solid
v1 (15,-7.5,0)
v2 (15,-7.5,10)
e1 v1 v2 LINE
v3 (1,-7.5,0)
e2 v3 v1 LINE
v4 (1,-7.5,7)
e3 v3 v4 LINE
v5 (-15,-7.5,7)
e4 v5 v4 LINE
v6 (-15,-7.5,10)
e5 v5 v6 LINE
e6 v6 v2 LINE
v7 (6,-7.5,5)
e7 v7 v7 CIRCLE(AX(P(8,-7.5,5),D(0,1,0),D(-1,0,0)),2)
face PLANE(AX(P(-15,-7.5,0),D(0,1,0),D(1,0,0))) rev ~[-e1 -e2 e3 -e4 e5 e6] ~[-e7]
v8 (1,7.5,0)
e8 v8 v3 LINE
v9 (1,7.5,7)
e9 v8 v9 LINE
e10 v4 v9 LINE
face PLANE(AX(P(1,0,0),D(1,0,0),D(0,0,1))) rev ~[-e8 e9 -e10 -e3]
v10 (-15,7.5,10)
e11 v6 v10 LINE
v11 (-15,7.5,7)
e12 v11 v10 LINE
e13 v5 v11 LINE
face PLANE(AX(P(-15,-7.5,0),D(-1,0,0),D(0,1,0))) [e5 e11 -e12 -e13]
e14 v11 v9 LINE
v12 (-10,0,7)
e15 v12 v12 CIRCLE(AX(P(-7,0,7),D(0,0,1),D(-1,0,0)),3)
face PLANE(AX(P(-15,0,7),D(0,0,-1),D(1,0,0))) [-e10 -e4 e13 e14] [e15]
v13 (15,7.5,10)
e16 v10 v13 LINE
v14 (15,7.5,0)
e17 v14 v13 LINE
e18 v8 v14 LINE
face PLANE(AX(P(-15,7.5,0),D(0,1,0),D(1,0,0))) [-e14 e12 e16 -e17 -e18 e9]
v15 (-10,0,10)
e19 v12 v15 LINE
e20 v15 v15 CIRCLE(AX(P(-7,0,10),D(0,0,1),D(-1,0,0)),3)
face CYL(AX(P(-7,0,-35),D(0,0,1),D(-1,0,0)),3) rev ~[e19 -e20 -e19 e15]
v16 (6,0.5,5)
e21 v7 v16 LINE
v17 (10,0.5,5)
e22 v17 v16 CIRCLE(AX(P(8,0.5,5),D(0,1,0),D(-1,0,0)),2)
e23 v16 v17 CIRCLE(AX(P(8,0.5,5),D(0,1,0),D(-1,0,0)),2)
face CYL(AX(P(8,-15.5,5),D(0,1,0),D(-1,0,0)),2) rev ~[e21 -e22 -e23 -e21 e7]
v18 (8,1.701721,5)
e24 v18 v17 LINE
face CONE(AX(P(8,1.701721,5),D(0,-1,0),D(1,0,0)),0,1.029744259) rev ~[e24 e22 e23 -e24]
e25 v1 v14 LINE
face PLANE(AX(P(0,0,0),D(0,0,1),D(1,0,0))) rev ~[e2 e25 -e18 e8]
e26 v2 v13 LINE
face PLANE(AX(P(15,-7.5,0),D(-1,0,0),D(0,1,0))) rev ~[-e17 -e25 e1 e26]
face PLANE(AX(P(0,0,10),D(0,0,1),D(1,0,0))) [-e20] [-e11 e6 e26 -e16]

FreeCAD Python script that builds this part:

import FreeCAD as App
import Part
import Sketcher


def add_polygon(sketch, points):
    """Adds a closed chain of lines whose ends are joined by coincident constraints."""
    first, n = sketch.GeometryCount, len(points)
    for a, b in zip(points, points[1:] + points[:1]):
        sketch.addGeometry(Part.LineSegment(App.Vector(*a, 0), App.Vector(*b, 0)), False)
    for i in range(n):
        sketch.addConstraint(Sketcher.Constraint("Coincident", first + i, 2, first + (i + 1) % n, 1))

doc = App.newDocument("Part")
body = doc.addObject("PartDesign::Body", "Body")

sketch1 = body.newObject("Sketcher::SketchObject", "Sketch")
sketch1.AttachmentSupport = (doc.getObject("XY_Plane"), [""])
sketch1.MapMode = "FlatFace"
add_polygon(sketch1, [(-15, 8), (-15, -8), (15, -8), (15, 8)])
sketch1.addConstraint([
    Sketcher.Constraint("Vertical", 0),
    Sketcher.Constraint("Horizontal", 1),
    Sketcher.Constraint("Vertical", 2),
    Sketcher.Constraint("Horizontal", 3),
    Sketcher.Constraint("Symmetric", 0, 2, 2, 2, -1, 1),
    Sketcher.Constraint("DistanceX", 1, 1, 1, 2, 30.0),
    Sketcher.Constraint("DistanceY", 0, 2, 0, 1, 15.0),
])
pad1 = body.newObject("PartDesign::Pad", "Pad")
pad1.Profile = sketch1
pad1.Length = 10

sketch2 = body.newObject("Sketcher::SketchObject", "Sketch001")
sketch2.AttachmentSupport = (doc.getObject("XY_Plane"), [""])
sketch2.MapMode = "FlatFace"
sketch2.addGeometry(Part.Circle(App.Vector(-7, 0, 0), App.Vector(0, 0, 1), 3), False)
sketch2.addConstraint([
    Sketcher.Constraint("PointOnObject", 0, 3, -1),
    Sketcher.Constraint("Diameter", 0, 6.0),
    Sketcher.Constraint("DistanceX", 0, 3, -1, 1, 7.0),
])
doc.recompute()
hole = body.newObject("PartDesign::Hole", "Hole")
hole.Profile = sketch2
hole.ThreadType = "None"
hole.Diameter = 6
hole.DepthType = "ThroughAll"
hole.Reversed = True

sketch3 = body.newObject("Sketcher::SketchObject", "Sketch002")
sketch3.AttachmentSupport = (doc.getObject("XZ_Plane"), [""])
sketch3.MapMode = "FlatFace"
sketch3.AttachmentOffset = App.Placement(App.Vector(0, 0, 7.5), App.Rotation())
sketch3.addGeometry(Part.Circle(App.Vector(8, 5, 0), App.Vector(0, 0, 1), 2), False)
sketch3.addConstraint([
    Sketcher.Constraint("Diameter", 0, 4.0),
    Sketcher.Constraint("DistanceX", -1, 1, 0, 3, 8.0),
    Sketcher.Constraint("DistanceY", -1, 1, 0, 3, 5.0),
])
doc.recompute()
hole2 = body.newObject("PartDesign::Hole", "Hole001")
hole2.Profile = sketch3
hole2.ThreadType = "None"
hole2.Diameter = 4
hole2.DepthType = "Dimension"
hole2.Depth = 8
hole2.DrillPoint = "Angled"
hole2.DrillPointAngle = 118

sketch4 = body.newObject("Sketcher::SketchObject", "Sketch003")
sketch4.AttachmentSupport = (doc.getObject("XZ_Plane"), [""])
sketch4.MapMode = "FlatFace"
add_polygon(sketch4, [(-15, 7), (-15, 0), (1, 0), (1, 7)])
sketch4.addConstraint([
    Sketcher.Constraint("Vertical", 0),
    Sketcher.Constraint("Horizontal", 1),
    Sketcher.Constraint("Vertical", 2),
    Sketcher.Constraint("Horizontal", 3),
    Sketcher.Constraint("PointOnObject", 0, 2, -1),
    Sketcher.Constraint("DistanceX", 1, 1, 1, 2, 16.0),
    Sketcher.Constraint("DistanceY", 0, 2, 0, 1, 7.0),
    Sketcher.Constraint("DistanceX", 0, 2, -1, 1, 15.0),
])
pocket1 = body.newObject("PartDesign::Pocket", "Pocket")
pocket1.Profile = sketch4
pocket1.Length = 15
pocket1.Midplane = True

doc.recompute()
